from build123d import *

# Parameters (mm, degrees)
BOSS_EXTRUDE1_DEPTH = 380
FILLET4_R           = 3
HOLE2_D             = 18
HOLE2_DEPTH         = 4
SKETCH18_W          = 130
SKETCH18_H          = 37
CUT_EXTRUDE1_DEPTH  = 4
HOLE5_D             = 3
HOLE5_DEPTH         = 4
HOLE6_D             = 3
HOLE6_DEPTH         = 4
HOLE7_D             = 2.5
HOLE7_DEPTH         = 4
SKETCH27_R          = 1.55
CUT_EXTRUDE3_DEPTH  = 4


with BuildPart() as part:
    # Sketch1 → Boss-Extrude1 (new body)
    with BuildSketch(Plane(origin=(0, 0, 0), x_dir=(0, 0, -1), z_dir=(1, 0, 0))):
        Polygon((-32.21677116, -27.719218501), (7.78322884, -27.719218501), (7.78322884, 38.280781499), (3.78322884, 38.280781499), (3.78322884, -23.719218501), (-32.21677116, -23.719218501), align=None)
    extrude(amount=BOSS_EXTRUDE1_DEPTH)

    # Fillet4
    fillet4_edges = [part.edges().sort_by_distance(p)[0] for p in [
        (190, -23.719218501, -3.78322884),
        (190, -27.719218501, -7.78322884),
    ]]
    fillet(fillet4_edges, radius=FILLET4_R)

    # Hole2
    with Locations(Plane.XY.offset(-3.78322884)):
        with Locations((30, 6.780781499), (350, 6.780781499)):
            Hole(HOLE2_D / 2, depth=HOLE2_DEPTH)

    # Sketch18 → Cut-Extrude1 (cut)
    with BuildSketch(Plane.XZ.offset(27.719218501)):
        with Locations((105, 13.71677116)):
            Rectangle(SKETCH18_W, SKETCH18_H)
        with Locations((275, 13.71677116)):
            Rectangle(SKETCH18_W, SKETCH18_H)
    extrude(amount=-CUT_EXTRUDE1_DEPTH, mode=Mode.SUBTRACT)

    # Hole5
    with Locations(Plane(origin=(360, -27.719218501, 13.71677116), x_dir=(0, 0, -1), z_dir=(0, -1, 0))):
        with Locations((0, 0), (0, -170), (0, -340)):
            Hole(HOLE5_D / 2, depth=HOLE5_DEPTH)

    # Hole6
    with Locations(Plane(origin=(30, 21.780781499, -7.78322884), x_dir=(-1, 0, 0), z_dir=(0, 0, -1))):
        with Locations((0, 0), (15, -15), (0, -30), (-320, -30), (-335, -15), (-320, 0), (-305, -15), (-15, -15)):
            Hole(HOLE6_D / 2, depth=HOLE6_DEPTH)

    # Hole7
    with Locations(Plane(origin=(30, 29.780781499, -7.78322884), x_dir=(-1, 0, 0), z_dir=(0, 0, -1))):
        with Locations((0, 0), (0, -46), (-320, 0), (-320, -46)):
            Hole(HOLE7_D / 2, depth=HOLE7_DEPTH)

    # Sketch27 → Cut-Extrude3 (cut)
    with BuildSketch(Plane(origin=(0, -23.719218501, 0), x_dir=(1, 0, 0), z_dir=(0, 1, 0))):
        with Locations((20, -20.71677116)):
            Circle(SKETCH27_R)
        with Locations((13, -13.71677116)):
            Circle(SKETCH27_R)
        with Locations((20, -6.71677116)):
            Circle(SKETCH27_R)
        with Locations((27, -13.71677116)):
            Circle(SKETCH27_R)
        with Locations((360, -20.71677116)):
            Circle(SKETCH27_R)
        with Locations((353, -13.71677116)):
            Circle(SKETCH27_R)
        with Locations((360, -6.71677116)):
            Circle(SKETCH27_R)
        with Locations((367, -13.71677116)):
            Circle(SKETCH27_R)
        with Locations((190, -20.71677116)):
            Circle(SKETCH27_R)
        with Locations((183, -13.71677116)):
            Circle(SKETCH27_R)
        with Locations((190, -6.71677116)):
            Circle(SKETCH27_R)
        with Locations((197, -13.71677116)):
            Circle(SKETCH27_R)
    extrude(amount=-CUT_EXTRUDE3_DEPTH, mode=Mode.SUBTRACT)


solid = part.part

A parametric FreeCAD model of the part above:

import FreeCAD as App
import Part
import Sketcher

V = App.Vector


def edges_at(feature, points):
    """Names of the edges that pass closest to the given points."""
    edges = feature.Shape.Edges
    near = lambda p: min(range(len(edges)), key=lambda i: edges[i].distToShape(Part.Vertex(*p))[0])
    return sorted({f"Edge{near(p) + 1}" for p in points})


def add_polygon(sketch, points):
    """Adds a closed chain of lines whose ends are joined by coincident constraints."""
    first, n = sketch.GeometryCount, len(points)
    for a, b in zip(points, points[1:] + points[:1]):
        sketch.addGeometry(Part.LineSegment(App.Vector(*a, 0), App.Vector(*b, 0)), False)
    for i in range(n):
        sketch.addConstraint(Sketcher.Constraint("Coincident", first + i, 2, first + (i + 1) % n, 1))

doc = App.newDocument("Part")
body = doc.addObject("PartDesign::Body", "Body")

# Sketch on YZ plane
sketch1 = body.newObject("Sketcher::SketchObject", "Sketch")
sketch1.AttachmentSupport = (doc.getObject("YZ_Plane"), [""])
sketch1.MapMode = "FlatFace"
add_polygon(sketch1, [(-27.719219, 32.216771), (-27.719219, -7.783229), (38.280781, -7.783229), (38.280781, -3.783229), (-23.719219, -3.783229), (-23.719219, 32.216771)])  # lines 0-5
sketch1.addConstraint(Sketcher.Constraint("Vertical", 0))
sketch1.addConstraint(Sketcher.Constraint("Horizontal", 1))
sketch1.addConstraint(Sketcher.Constraint("Vertical", 2))
sketch1.addConstraint(Sketcher.Constraint("Horizontal", 3))
sketch1.addConstraint(Sketcher.Constraint("Vertical", 4))
sketch1.addConstraint(Sketcher.Constraint("Horizontal", 5))
sketch1.addConstraint(Sketcher.Constraint("Equal", 5, 2))
sketch1.addConstraint(Sketcher.Constraint("DistanceX", 1, 1, 1, 2, 66.0))
sketch1.addConstraint(Sketcher.Constraint("DistanceX", 3, 2, 3, 1, 62.0))
sketch1.addConstraint(Sketcher.Constraint("DistanceY", 0, 2, 0, 1, 40.0))
sketch1.addConstraint(Sketcher.Constraint("DistanceX", 0, 2, -1, 1, 27.719219))
sketch1.addConstraint(Sketcher.Constraint("DistanceY", 0, 2, -1, 1, 7.783229))
pad1 = body.newObject("PartDesign::Pad", "Pad")
pad1.Profile = sketch1
pad1.Length = 380
doc.recompute()

fillet = body.newObject("PartDesign::Fillet", "Fillet")
fillet.Base = (pad1, edges_at(pad1, [(190, -23.719, -3.783), (190, -27.719, -7.783)]))
fillet.Radius = 3

# Sketch on XY plane
sketch2 = body.newObject("Sketcher::SketchObject", "Sketch001")
sketch2.AttachmentSupport = (doc.getObject("XY_Plane"), [""])
sketch2.MapMode = "FlatFace"
sketch2.AttachmentOffset = App.Placement(V(0, 0, -3.783229), App.Rotation())
sketch2.addGeometry(Part.Circle(V(30, 6.780781, 0), V(0, 0, 1), 9), False)
sketch2.addGeometry(Part.Circle(V(350, 6.780781, 0), V(0, 0, 1), 9), False)
sketch2.addConstraint(Sketcher.Constraint("Equal", 0, 1))
sketch2.addConstraint(Sketcher.Constraint("Horizontal", 0, 3, 1, 3))
sketch2.addConstraint(Sketcher.Constraint("Diameter", 0, 18.0))
sketch2.addConstraint(Sketcher.Constraint("DistanceX", -1, 1, 0, 3, 30.0))
sketch2.addConstraint(Sketcher.Constraint("DistanceX", -1, 1, 1, 3, 350.0))
sketch2.addConstraint(Sketcher.Constraint("DistanceY", -1, 1, 0, 3, 6.780781))
doc.recompute()
hole = body.newObject("PartDesign::Hole", "Hole")
hole.Profile = sketch2
hole.ThreadType = "None"
hole.Diameter = 18
hole.DepthType = "Dimension"
hole.Depth = 4
hole.DrillPoint = "Flat"

# Sketch on XZ plane
sketch3 = body.newObject("Sketcher::SketchObject", "Sketch002")
sketch3.AttachmentSupport = (doc.getObject("XZ_Plane"), [""])
sketch3.MapMode = "FlatFace"
sketch3.AttachmentOffset = App.Placement(V(0, 0, 27.719219), App.Rotation())
add_polygon(sketch3, [(40, 32.216771), (40, -4.783229), (170, -4.783229), (170, 32.216771)])  # lines 0-3
add_polygon(sketch3, [(210, 32.216771), (210, -4.783229), (340, -4.783229), (340, 32.216771)])  # lines 4-7
sketch3.addConstraint(Sketcher.Constraint("Vertical", 0))
sketch3.addConstraint(Sketcher.Constraint("Horizontal", 1))
sketch3.addConstraint(Sketcher.Constraint("Vertical", 2))
sketch3.addConstraint(Sketcher.Constraint("Horizontal", 3))
sketch3.addConstraint(Sketcher.Constraint("Vertical", 4))
sketch3.addConstraint(Sketcher.Constraint("Horizontal", 5))
sketch3.addConstraint(Sketcher.Constraint("Vertical", 6))
sketch3.addConstraint(Sketcher.Constraint("Horizontal", 7))
sketch3.addConstraint(Sketcher.Constraint("Horizontal", 1, 2, 4, 2))
sketch3.addConstraint(Sketcher.Constraint("Horizontal", 3, 2, 6, 2))
sketch3.addConstraint(Sketcher.Constraint("Equal", 3, 5))
sketch3.addConstraint(Sketcher.Constraint("DistanceX", 1, 1, 1, 2, 130.0))
sketch3.addConstraint(Sketcher.Constraint("DistanceY", 0, 2, 0, 1, 37.0))
sketch3.addConstraint(Sketcher.Constraint("DistanceX", -1, 1, 0, 2, 40.0))
sketch3.addConstraint(Sketcher.Constraint("DistanceX", -1, 1, 4, 2, 210.0))
sketch3.addConstraint(Sketcher.Constraint("DistanceY", 0, 2, -1, 1, 4.783229))
pocket1 = body.newObject("PartDesign::Pocket", "Pocket")
pocket1.Profile = sketch3
pocket1.Length = 4

# Sketch on XZ plane
sketch4 = body.newObject("Sketcher::SketchObject", "Sketch003")
sketch4.AttachmentSupport = (doc.getObject("XZ_Plane"), [""])
sketch4.MapMode = "FlatFace"
sketch4.AttachmentOffset = App.Placement(V(0, 0, 27.719219), App.Rotation())
sketch4.addGeometry(Part.Circle(V(360, 13.716771, 0), V(0, 0, 1), 1.5), False)
sketch4.addGeometry(Part.Circle(V(190, 13.716771, 0), V(0, 0, 1), 1.5), False)
sketch4.addGeometry(Part.Circle(V(20, 13.716771, 0), V(0, 0, 1), 1.5), False)
sketch4.addConstraint(Sketcher.Constraint("Equal", 0, 1))
sketch4.addConstraint(Sketcher.Constraint("Equal", 1, 2))
sketch4.addConstraint(Sketcher.Constraint("Horizontal", 0, 3, 1, 3))
sketch4.addConstraint(Sketcher.Constraint("Horizontal", 1, 3, 2, 3))
sketch4.addConstraint(Sketcher.Constraint("Diameter", 0, 3.0))
sketch4.addConstraint(Sketcher.Constraint("DistanceX", -1, 1, 0, 3, 360.0))
sketch4.addConstraint(Sketcher.Constraint("DistanceX", -1, 1, 1, 3, 190.0))
sketch4.addConstraint(Sketcher.Constraint("DistanceX", -1, 1, 2, 3, 20.0))
sketch4.addConstraint(Sketcher.Constraint("DistanceY", -1, 1, 0, 3, 13.716771))
doc.recompute()
hole2 = body.newObject("PartDesign::Hole", "Hole001")
hole2.Profile = sketch4
hole2.ThreadType = "None"
hole2.Diameter = 3
hole2.DepthType = "Dimension"
hole2.Depth = 4
hole2.DrillPoint = "Flat"

# Sketch on XY plane
sketch5 = body.newObject("Sketcher::SketchObject", "Sketch004")
sketch5.AttachmentSupport = (doc.getObject("XY_Plane"), [""])
sketch5.MapMode = "FlatFace"
sketch5.AttachmentOffset = App.Placement(V(0, 0, -7.783229), App.Rotation())
sketch5.addGeometry(Part.Circle(V(30, 21.780781, 0), V(0, 0, 1), 1.5), False)
sketch5.addGeometry(Part.Circle(V(15, 6.780781, 0), V(0, 0, 1), 1.5), False)
sketch5.addGeometry(Part.Circle(V(30, -8.219219, 0), V(0, 0, 1), 1.5), False)
sketch5.addGeometry(Part.Circle(V(350, -8.219219, 0), V(0, 0, 1), 1.5), False)
sketch5.addGeometry(Part.Circle(V(365, 6.780781, 0), V(0, 0, 1), 1.5), False)
sketch5.addGeometry(Part.Circle(V(350, 21.780781, 0), V(0, 0, 1), 1.5), False)
sketch5.addGeometry(Part.Circle(V(335, 6.780781, 0), V(0, 0, 1), 1.5), False)
sketch5.addGeometry(Part.Circle(V(45, 6.780781, 0), V(0, 0, 1), 1.5), False)
sketch5.addConstraint(Sketcher.Constraint("Equal", 0, 1))
sketch5.addConstraint(Sketcher.Constraint("Equal", 1, 2))
sketch5.addConstraint(Sketcher.Constraint("Equal", 2, 3))
sketch5.addConstraint(Sketcher.Constraint("Equal", 3, 4))
sketch5.addConstraint(Sketcher.Constraint("Equal", 4, 5))
sketch5.addConstraint(Sketcher.Constraint("Equal", 5, 6))
sketch5.addConstraint(Sketcher.Constraint("Equal", 6, 7))
sketch5.addConstraint(Sketcher.Constraint("Horizontal", 2, 3, 3, 3))
sketch5.addConstraint(Sketcher.Constraint("Horizontal", 1, 3, 4, 3))
sketch5.addConstraint(Sketcher.Constraint("Horizontal", 0, 3, 5, 3))
sketch5.addConstraint(Sketcher.Constraint("Horizontal", 4, 3, 6, 3))
sketch5.addConstraint(Sketcher.Constraint("Horizontal", 6, 3, 7, 3))
sketch5.addConstraint(Sketcher.Constraint("Vertical", 0, 3, 2, 3))
sketch5.addConstraint(Sketcher.Constraint("Vertical", 3, 3, 5, 3))
sketch5.addConstraint(Sketcher.Constraint("Diameter", 0, 3.0))
sketch5.addConstraint(Sketcher.Constraint("DistanceX", -1, 1, 0, 3, 30.0))
sketch5.addConstraint(Sketcher.Constraint("DistanceX", -1, 1, 1, 3, 15.0))
sketch5.addConstraint(Sketcher.Constraint("DistanceX", -1, 1, 3, 3, 350.0))
sketch5.addConstraint(Sketcher.Constraint("DistanceX", -1, 1, 4, 3, 365.0))
sketch5.addConstraint(Sketcher.Constraint("DistanceX", -1, 1, 6, 3, 335.0))
sketch5.addConstraint(Sketcher.Constraint("DistanceX", -1, 1, 7, 3, 45.0))
sketch5.addConstraint(Sketcher.Constraint("DistanceY", 1, 3, 0, 3, 15.0))
sketch5.addConstraint(Sketcher.Constraint("DistanceY", 2, 3, 1, 3, 15.0))
sketch5.addConstraint(Sketcher.Constraint("DistanceY", -1, 1, 0, 3, 21.780781))
doc.recompute()
hole3 = body.newObject("PartDesign::Hole", "Hole002")
hole3.Profile = sketch5
hole3.ThreadType = "None"
hole3.Diameter = 3
hole3.DepthType = "Dimension"
hole3.Depth = 4
hole3.DrillPoint = "Flat"
hole3.Reversed = True

# Sketch on XY plane
sketch6 = body.newObject("Sketcher::SketchObject", "Sketch005")
sketch6.AttachmentSupport = (doc.getObject("XY_Plane"), [""])
sketch6.MapMode = "FlatFace"
sketch6.AttachmentOffset = App.Placement(V(0, 0, -7.783229), App.Rotation())
sketch6.addGeometry(Part.Circle(V(30, 29.780781, 0), V(0, 0, 1), 1.25), False)
sketch6.addGeometry(Part.Circle(V(30, -16.219219, 0), V(0, 0, 1), 1.25), False)
sketch6.addGeometry(Part.Circle(V(350, 29.780781, 0), V(0, 0, 1), 1.25), False)
sketch6.addGeometry(Part.Circle(V(350, -16.219219, 0), V(0, 0, 1), 1.25), False)
sketch6.addConstraint(Sketcher.Constraint("Equal", 0, 1))
sketch6.addConstraint(Sketcher.Constraint("Equal", 1, 2))
sketch6.addConstraint(Sketcher.Constraint("Equal", 2, 3))
sketch6.addConstraint(Sketcher.Constraint("Horizontal", 0, 3, 2, 3))
sketch6.addConstraint(Sketcher.Constraint("Horizontal", 1, 3, 3, 3))
sketch6.addConstraint(Sketcher.Constraint("Vertical", 0, 3, 1, 3))
sketch6.addConstraint(Sketcher.Constraint("Vertical", 2, 3, 3, 3))
sketch6.addConstraint(Sketcher.Constraint("Diameter", 0, 2.5))
sketch6.addConstraint(Sketcher.Constraint("DistanceX", -1, 1, 0, 3, 30.0))
sketch6.addConstraint(Sketcher.Constraint("DistanceX", -1, 1, 2, 3, 350.0))
sketch6.addConstraint(Sketcher.Constraint("DistanceY", 1, 3, 0, 3, 46.0))
sketch6.addConstraint(Sketcher.Constraint("DistanceY", -1, 1, 0, 3, 29.780781))
doc.recompute()
hole4 = body.newObject("PartDesign::Hole", "Hole003")
hole4.Profile = sketch6
hole4.ThreadType = "None"
hole4.Diameter = 2.5
hole4.DepthType = "Dimension"
hole4.Depth = 4
hole4.DrillPoint = "Flat"
hole4.Reversed = True

# Sketch on XZ plane
sketch7 = body.newObject("Sketcher::SketchObject", "Sketch006")
sketch7.AttachmentSupport = (doc.getObject("XZ_Plane"), [""])
sketch7.MapMode = "FlatFace"
sketch7.AttachmentOffset = App.Placement(V(0, 0, 23.719219), App.Rotation())
sketch7.addGeometry(Part.Circle(V(20, 20.716771, 0), V(0, 0, 1), 1.55), False)
sketch7.addGeometry(Part.Circle(V(13, 13.716771, 0), V(0, 0, 1), 1.55), False)
sketch7.addGeometry(Part.Circle(V(20, 6.716771, 0), V(0, 0, 1), 1.55), False)
sketch7.addGeometry(Part.Circle(V(27, 13.716771, 0), V(0, 0, 1), 1.55), False)
sketch7.addGeometry(Part.Circle(V(360, 20.716771, 0), V(0, 0, 1), 1.55), False)
sketch7.addGeometry(Part.Circle(V(353, 13.716771, 0), V(0, 0, 1), 1.55), False)
sketch7.addGeometry(Part.Circle(V(360, 6.716771, 0), V(0, 0, 1), 1.55), False)
sketch7.addGeometry(Part.Circle(V(367, 13.716771, 0), V(0, 0, 1), 1.55), False)
sketch7.addGeometry(Part.Circle(V(190, 20.716771, 0), V(0, 0, 1), 1.55), False)
sketch7.addGeometry(Part.Circle(V(183, 13.716771, 0), V(0, 0, 1), 1.55), False)
sketch7.addGeometry(Part.Circle(V(190, 6.716771, 0), V(0, 0, 1), 1.55), False)
sketch7.addGeometry(Part.Circle(V(197, 13.716771, 0), V(0, 0, 1), 1.55), False)
sketch7.addConstraint(Sketcher.Constraint("Equal", 0, 1))
sketch7.addConstraint(Sketcher.Constraint("Equal", 1, 2))
sketch7.addConstraint(Sketcher.Constraint("Equal", 2, 3))
sketch7.addConstraint(Sketcher.Constraint("Equal", 3, 4))
sketch7.addConstraint(Sketcher.Constraint("Equal", 4, 5))
sketch7.addConstraint(Sketcher.Constraint("Equal", 5, 6))
sketch7.addConstraint(Sketcher.Constraint("Equal", 6, 7))
sketch7.addConstraint(Sketcher.Constraint("Equal", 7, 8))
sketch7.addConstraint(Sketcher.Constraint("Equal", 8, 9))
sketch7.addConstraint(Sketcher.Constraint("Equal", 9, 10))
sketch7.addConstraint(Sketcher.Constraint("Equal", 10, 11))
sketch7.addConstraint(Sketcher.Constraint("Horizontal", 1, 3, 3, 3))
sketch7.addConstraint(Sketcher.Constraint("Horizontal", 0, 3, 4, 3))
sketch7.addConstraint(Sketcher.Constraint("Horizontal", 3, 3, 5, 3))
sketch7.addConstraint(Sketcher.Constraint("Horizontal", 2, 3, 6, 3))
sketch7.addConstraint(Sketcher.Constraint("Horizontal", 5, 3, 7, 3))
sketch7.addConstraint(Sketcher.Constraint("Horizontal", 4, 3, 8, 3))
sketch7.addConstraint(Sketcher.Constraint("Horizontal", 7, 3, 9, 3))
sketch7.addConstraint(Sketcher.Constraint("Horizontal", 6, 3, 10, 3))
sketch7.addConstraint(Sketcher.Constraint("Horizontal", 9, 3, 11, 3))
sketch7.addConstraint(Sketcher.Constraint("Vertical", 0, 3, 2, 3))
sketch7.addConstraint(Sketcher.Constraint("Vertical", 4, 3, 6, 3))
sketch7.addConstraint(Sketcher.Constraint("Vertical", 8, 3, 10, 3))
sketch7.addConstraint(Sketcher.Constraint("Diameter", 0, 3.1))
sketch7.addConstraint(Sketcher.Constraint("DistanceX", -1, 1, 0, 3, 20.0))
sketch7.addConstraint(Sketcher.Constraint("DistanceX", -1, 1, 1, 3, 13.0))
sketch7.addConstraint(Sketcher.Constraint("DistanceX", -1, 1, 3, 3, 27.0))
sketch7.addConstraint(Sketcher.Constraint("DistanceX", -1, 1, 4, 3, 360.0))
sketch7.addConstraint(Sketcher.Constraint("DistanceX", -1, 1, 5, 3, 353.0))
sketch7.addConstraint(Sketcher.Constraint("DistanceX", -1, 1, 7, 3, 367.0))
sketch7.addConstraint(Sketcher.Constraint("DistanceX", -1, 1, 8, 3, 190.0))
sketch7.addConstraint(Sketcher.Constraint("DistanceX", -1, 1, 9, 3, 183.0))
sketch7.addConstraint(Sketcher.Constraint("DistanceX", -1, 1, 11, 3, 197.0))
sketch7.addConstraint(Sketcher.Constraint("DistanceY", 1, 3, 0, 3, 7.0))
sketch7.addConstraint(Sketcher.Constraint("DistanceY", 2, 3, 1, 3, 7.0))
sketch7.addConstraint(Sketcher.Constraint("DistanceY", -1, 1, 0, 3, 20.716771))
pocket2 = body.newObject("PartDesign::Pocket", "Pocket001")
pocket2.Profile = sketch7
pocket2.Length = 4
pocket2.Reversed = True

doc.recompute()
